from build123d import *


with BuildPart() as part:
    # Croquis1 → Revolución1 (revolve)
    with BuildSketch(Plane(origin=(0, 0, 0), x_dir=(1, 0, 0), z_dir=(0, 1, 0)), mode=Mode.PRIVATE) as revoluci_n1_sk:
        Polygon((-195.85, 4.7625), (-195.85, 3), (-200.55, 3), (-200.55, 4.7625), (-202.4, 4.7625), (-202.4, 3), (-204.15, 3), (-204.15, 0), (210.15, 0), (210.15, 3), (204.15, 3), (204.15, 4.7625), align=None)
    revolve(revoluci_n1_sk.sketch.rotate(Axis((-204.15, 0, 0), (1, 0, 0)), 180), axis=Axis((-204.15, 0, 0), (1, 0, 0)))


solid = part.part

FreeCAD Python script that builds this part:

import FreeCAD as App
import Part
import Sketcher
from FreeCAD import Vector

doc = App.newDocument("Part")
body = doc.addObject("PartDesign::Body", "Body")

sketch1 = body.newObject("Sketcher::SketchObject", "Sketch")
sketch1.AttachmentSupport = (doc.getObject("XZ_Plane"), [""])
sketch1.MapMode = "FlatFace"
sketch1.addGeometry([
    Part.LineSegment(Vector(-195.8, -4.8, 0), Vector(-195.8, -3, 0)),
    Part.LineSegment(Vector(-195.8, -3, 0), Vector(-200.6, -3, 0)),
    Part.LineSegment(Vector(-200.6, -3, 0), Vector(-200.6, -4.8, 0)),
    Part.LineSegment(Vector(-200.6, -4.8, 0), Vector(-202.4, -4.8, 0)),
    Part.LineSegment(Vector(-202.4, -4.8, 0), Vector(-202.4, -3, 0)),
    Part.LineSegment(Vector(-202.4, -3, 0), Vector(-204.2, -3, 0)),
    Part.LineSegment(Vector(-204.2, -3, 0), Vector(-204.2, 0, 0)),
    Part.LineSegment(Vector(-204.2, 0, 0), Vector(210.2, 0, 0)),
    Part.LineSegment(Vector(210.2, 0, 0), Vector(210.2, -3, 0)),
    Part.LineSegment(Vector(210.2, -3, 0), Vector(204.2, -3, 0)),
    Part.LineSegment(Vector(204.2, -3, 0), Vector(204.2, -4.8, 0)),
    Part.LineSegment(Vector(204.2, -4.8, 0), Vector(-195.8, -4.8, 0)),
], False)
sketch1.addConstraint([
    Sketcher.Constraint("Coincident", 0, 2, 1, 1),
    Sketcher.Constraint("Coincident", 1, 2, 2, 1),
    Sketcher.Constraint("Coincident", 2, 2, 3, 1),
    Sketcher.Constraint("Coincident", 3, 2, 4, 1),
    Sketcher.Constraint("Coincident", 4, 2, 5, 1),
    Sketcher.Constraint("Coincident", 5, 2, 6, 1),
    Sketcher.Constraint("Coincident", 6, 2, 7, 1),
    Sketcher.Constraint("Coincident", 7, 2, 8, 1),
    Sketcher.Constraint("Coincident", 8, 2, 9, 1),
    Sketcher.Constraint("Coincident", 9, 2, 10, 1),
    Sketcher.Constraint("Coincident", 10, 2, 11, 1),
    Sketcher.Constraint("Coincident", 11, 2, 0, 1),
    Sketcher.Constraint("Vertical", 0),
    Sketcher.Constraint("Horizontal", 1),
    Sketcher.Constraint("Vertical", 2),
    Sketcher.Constraint("Horizontal", 3),
    Sketcher.Constraint("Vertical", 4),
    Sketcher.Constraint("Horizontal", 5),
    Sketcher.Constraint("Vertical", 6),
    Sketcher.Constraint("Horizontal", 7),
    Sketcher.Constraint("Vertical", 8),
    Sketcher.Constraint("Horizontal", 9),
    Sketcher.Constraint("Vertical", 10),
    Sketcher.Constraint("Horizontal", 11),
    Sketcher.Constraint("Symmetric", 5, 2, 9, 2, -2),
    Sketcher.Constraint("PointOnObject", 6, 2, -1),
    Sketcher.Constraint("Horizontal", 1, 2, 4, 2),
    Sketcher.Constraint("Horizontal", 3, 2, 10, 2),
    Sketcher.Constraint("DistanceX", 9, 2, 9, 1, 6.0),
    Sketcher.Constraint("DistanceX", 11, 2, 11, 1, 400.0),
    Sketcher.Constraint("DistanceY", 6, 1, 6, 2, 3.0),
    Sketcher.Constraint("DistanceX", 1, 2, 1, 1, 4.7),
    Sketcher.Constraint("DistanceX", 7, 1, 7, 2, 414.3),
    Sketcher.Constraint("DistanceX", 3, 2, 3, 1, 1.85),
    Sketcher.Constraint("DistanceY", 0, 1, 0, 2, 1.7625),
])
revolution = body.newObject("PartDesign::Revolution", "Revolution")
revolution.Profile = sketch1
revolution.ReferenceAxis = (sketch1, ["H_Axis"])
revolution.Angle = 360

doc.recompute()
